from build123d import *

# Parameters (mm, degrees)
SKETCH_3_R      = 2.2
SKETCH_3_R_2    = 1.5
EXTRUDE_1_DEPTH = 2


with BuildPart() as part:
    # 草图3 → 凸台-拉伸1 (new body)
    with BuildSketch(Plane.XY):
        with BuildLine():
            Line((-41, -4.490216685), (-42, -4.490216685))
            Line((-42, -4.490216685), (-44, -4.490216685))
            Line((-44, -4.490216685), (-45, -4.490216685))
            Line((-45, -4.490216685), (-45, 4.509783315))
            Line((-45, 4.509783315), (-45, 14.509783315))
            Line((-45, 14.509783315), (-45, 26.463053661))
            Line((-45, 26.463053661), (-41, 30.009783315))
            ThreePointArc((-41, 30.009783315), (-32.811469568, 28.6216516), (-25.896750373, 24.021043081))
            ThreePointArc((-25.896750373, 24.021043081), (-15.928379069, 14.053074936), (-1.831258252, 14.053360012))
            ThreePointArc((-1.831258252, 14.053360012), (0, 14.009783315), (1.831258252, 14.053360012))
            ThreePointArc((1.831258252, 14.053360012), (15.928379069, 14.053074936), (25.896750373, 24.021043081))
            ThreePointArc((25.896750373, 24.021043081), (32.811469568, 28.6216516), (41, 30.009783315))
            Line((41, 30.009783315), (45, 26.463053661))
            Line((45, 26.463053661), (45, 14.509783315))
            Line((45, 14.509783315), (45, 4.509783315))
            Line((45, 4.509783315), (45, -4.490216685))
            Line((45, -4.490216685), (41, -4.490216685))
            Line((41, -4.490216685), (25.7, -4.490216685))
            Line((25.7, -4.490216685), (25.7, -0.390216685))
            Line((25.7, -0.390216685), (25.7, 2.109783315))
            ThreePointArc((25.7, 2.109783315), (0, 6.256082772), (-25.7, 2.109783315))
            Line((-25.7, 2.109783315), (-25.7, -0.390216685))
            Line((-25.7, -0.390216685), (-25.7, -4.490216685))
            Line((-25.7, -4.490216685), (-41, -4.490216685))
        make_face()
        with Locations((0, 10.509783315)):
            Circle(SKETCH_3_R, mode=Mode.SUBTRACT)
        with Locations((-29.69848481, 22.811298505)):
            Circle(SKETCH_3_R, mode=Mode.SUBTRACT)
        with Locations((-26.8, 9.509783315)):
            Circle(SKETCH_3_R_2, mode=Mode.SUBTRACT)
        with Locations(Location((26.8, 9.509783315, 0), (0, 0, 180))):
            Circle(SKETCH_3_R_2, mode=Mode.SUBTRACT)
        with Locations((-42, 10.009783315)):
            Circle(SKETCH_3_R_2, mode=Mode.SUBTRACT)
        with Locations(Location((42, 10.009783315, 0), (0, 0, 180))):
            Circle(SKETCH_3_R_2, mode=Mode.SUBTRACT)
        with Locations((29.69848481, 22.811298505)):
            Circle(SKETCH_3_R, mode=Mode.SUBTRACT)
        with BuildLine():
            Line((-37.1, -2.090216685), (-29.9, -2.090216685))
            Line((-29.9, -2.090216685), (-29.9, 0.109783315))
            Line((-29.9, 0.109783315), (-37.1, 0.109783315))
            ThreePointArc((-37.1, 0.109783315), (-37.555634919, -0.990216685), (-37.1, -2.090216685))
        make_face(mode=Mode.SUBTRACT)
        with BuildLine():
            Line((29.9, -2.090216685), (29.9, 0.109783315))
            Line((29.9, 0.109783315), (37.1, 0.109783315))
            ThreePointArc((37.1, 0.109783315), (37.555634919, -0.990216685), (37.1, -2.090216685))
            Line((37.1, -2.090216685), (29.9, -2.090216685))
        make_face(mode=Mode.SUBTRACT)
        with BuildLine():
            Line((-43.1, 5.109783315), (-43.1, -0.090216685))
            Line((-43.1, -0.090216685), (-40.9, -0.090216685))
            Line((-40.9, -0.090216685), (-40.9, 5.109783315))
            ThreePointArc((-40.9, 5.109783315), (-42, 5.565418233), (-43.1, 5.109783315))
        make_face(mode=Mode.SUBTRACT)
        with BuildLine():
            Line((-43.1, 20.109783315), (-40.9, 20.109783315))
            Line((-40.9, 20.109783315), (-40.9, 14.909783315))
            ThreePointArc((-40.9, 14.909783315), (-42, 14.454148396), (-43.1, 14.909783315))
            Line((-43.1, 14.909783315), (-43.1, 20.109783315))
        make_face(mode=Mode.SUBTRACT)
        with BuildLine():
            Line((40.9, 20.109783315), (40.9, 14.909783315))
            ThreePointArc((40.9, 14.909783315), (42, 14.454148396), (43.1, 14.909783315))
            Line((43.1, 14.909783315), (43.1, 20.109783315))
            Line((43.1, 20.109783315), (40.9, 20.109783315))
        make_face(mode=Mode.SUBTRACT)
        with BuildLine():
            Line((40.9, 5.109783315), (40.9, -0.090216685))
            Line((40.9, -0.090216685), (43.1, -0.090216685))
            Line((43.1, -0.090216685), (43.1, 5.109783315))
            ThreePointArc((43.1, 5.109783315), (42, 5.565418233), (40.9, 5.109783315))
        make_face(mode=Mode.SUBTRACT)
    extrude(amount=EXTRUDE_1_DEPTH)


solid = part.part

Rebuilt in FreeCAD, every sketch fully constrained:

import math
import FreeCAD as App
import Part
import Sketcher
from FreeCAD import Vector

doc = App.newDocument("Part")
params = doc.addObject("Spreadsheet::Sheet", "Params")
for row, (alias, value) in enumerate([
    ("sketch1_diameter", "3 mm"),
    ("sketch1_diameter2", "4.4 mm"),
    ("sketch1_radius", "38.500001 mm"),
    ("sketch1_width", "19.3 mm"),
    ("sketch1_width2", "7.2 mm"),
    ("pad1_length", "2 mm"),
], start=1):
    params.set(f"A{row}", alias)
    params.set(f"B{row}", "=" + value)
    params.setAlias(f"B{row}", alias)

body = doc.addObject("PartDesign::Body", "Body")

sketch1 = body.newObject("Sketcher::SketchObject", "Sketch")
sketch1.AttachmentSupport = (doc.getObject("XY_Plane"), [""])
sketch1.MapMode = "FlatFace"
sketch1.addGeometry(Part.LineSegment(Vector(-45, 26.463054, 0), Vector(-45, -4.490217, 0)), False)
sketch1.addGeometry(Part.LineSegment(Vector(-45, -4.490217, 0), Vector(-25.7, -4.490217, 0)), False)
sketch1.addGeometry(Part.LineSegment(Vector(-25.7, -4.490217, 0), Vector(-25.7, 2.109783, 0)), False)
sketch1.addGeometry(Part.ArcOfCircle(Part.Circle(Vector(0, -75.465197, 0), Vector(0, 0, 1), 81.72128), math.radians(71.67036), math.radians(108.32964)), False)
sketch1.addGeometry(Part.LineSegment(Vector(25.7, 2.109783, 0), Vector(25.7, -4.490217, 0)), False)
sketch1.addGeometry(Part.LineSegment(Vector(25.7, -4.490217, 0), Vector(45, -4.490217, 0)), False)
sketch1.addGeometry(Part.LineSegment(Vector(45, -4.490217, 0), Vector(45, 26.463054, 0)), False)
sketch1.addGeometry(Part.LineSegment(Vector(45, 26.463054, 0), Vector(41, 30.009783, 0)), False)
sketch1.addGeometry(Part.ArcOfCircle(Part.Circle(Vector(40.16884, 10.066797, 0), Vector(0, 0, 1), 19.960299), math.radians(87.613476), math.radians(135.645154)), False)
sketch1.addGeometry(Part.ArcOfCircle(Part.Circle(Vector(8.880163, 31.069948, 0), Vector(0, 0, 1), 18.418776), math.radians(-112.501159), math.radians(-22.501159)), False)
sketch1.addGeometry(Part.ArcOfCircle(Part.Circle(Vector(0, 52.509784, 0), Vector(0, 0, 1), 38.500001), math.radians(-92.726311), math.radians(-87.273689)), False)
sketch1.addGeometry(Part.ArcOfCircle(Part.Circle(Vector(-8.880163, 31.069948, 0), Vector(0, 0, 1), 18.418776), math.radians(-157.498841), math.radians(-67.498841)), False)
sketch1.addGeometry(Part.ArcOfCircle(Part.Circle(Vector(-40.16884, 10.066797, 0), Vector(0, 0, 1), 19.960299), math.radians(44.354846), math.radians(92.386524)), False)
sketch1.addGeometry(Part.LineSegment(Vector(-41, 30.009783, 0), Vector(-45, 26.463054, 0)), False)
sketch1.addGeometry(Part.LineSegment(Vector(29.9, -2.090217, 0), Vector(29.9, 0.109783, 0)), False)
sketch1.addGeometry(Part.LineSegment(Vector(29.9, 0.109783, 0), Vector(37.1, 0.109783, 0)), False)
sketch1.addGeometry(Part.ArcOfCircle(Part.Circle(Vector(36, -0.990217, 0), Vector(0, 0, 1), 1.555635), math.radians(-45), math.radians(45)), False)
sketch1.addGeometry(Part.LineSegment(Vector(37.1, -2.090217, 0), Vector(29.9, -2.090217, 0)), False)
sketch1.addGeometry(Part.ArcOfCircle(Part.Circle(Vector(42, 4.009783, 0), Vector(0, 0, 1), 1.555635), math.radians(45), math.radians(135)), False)
sketch1.addGeometry(Part.LineSegment(Vector(43.1, 5.109783, 0), Vector(43.1, -0.090217, 0)), False)
sketch1.addGeometry(Part.LineSegment(Vector(43.1, -0.090217, 0), Vector(40.9, -0.090217, 0)), False)
sketch1.addGeometry(Part.LineSegment(Vector(40.9, -0.090217, 0), Vector(40.9, 5.109783, 0)), False)
sketch1.addGeometry(Part.Circle(Vector(42, 10.009783, 0), Vector(0, 0, 1), 1.5), False)
sketch1.addGeometry(Part.Circle(Vector(26.8, 9.509783, 0), Vector(0, 0, 1), 1.5), False)
sketch1.addGeometry(Part.ArcOfCircle(Part.Circle(Vector(-36, -0.990217, 0), Vector(0, 0, 1), 1.555635), math.radians(135), math.radians(225)), False)
sketch1.addGeometry(Part.LineSegment(Vector(-37.1, 0.109783, 0), Vector(-29.9, 0.109783, 0)), False)
sketch1.addGeometry(Part.LineSegment(Vector(-29.9, 0.109783, 0), Vector(-29.9, -2.090217, 0)), False)
sketch1.addGeometry(Part.LineSegment(Vector(-29.9, -2.090217, 0), Vector(-37.1, -2.090217, 0)), False)
sketch1.addGeometry(Part.ArcOfCircle(Part.Circle(Vector(-42, 4.009783, 0), Vector(0, 0, 1), 1.555635), math.radians(45), math.radians(135)), False)
sketch1.addGeometry(Part.LineSegment(Vector(-40.9, 5.109783, 0), Vector(-40.9, -0.090217, 0)), False)
sketch1.addGeometry(Part.LineSegment(Vector(-40.9, -0.090217, 0), Vector(-43.1, -0.090217, 0)), False)
sketch1.addGeometry(Part.LineSegment(Vector(-43.1, -0.090217, 0), Vector(-43.1, 5.109783, 0)), False)
sketch1.addGeometry(Part.Circle(Vector(0, 10.509783, 0), Vector(0, 0, 1), 2.2), False)
sketch1.addGeometry(Part.Circle(Vector(-26.8, 9.509783, 0), Vector(0, 0, 1), 1.5), False)
sketch1.addGeometry(Part.Circle(Vector(-42, 10.009783, 0), Vector(0, 0, 1), 1.5), False)
sketch1.addGeometry(Part.LineSegment(Vector(40.9, 20.109783, 0), Vector(43.1, 20.109783, 0)), False)
sketch1.addGeometry(Part.LineSegment(Vector(43.1, 20.109783, 0), Vector(43.1, 14.909783, 0)), False)
sketch1.addGeometry(Part.ArcOfCircle(Part.Circle(Vector(42, 16.009783, 0), Vector(0, 0, 1), 1.555635), math.radians(-135), math.radians(-45)), False)
sketch1.addGeometry(Part.LineSegment(Vector(40.9, 14.909783, 0), Vector(40.9, 20.109783, 0)), False)
sketch1.addGeometry(Part.Circle(Vector(29.698485, 22.811299, 0), Vector(0, 0, 1), 2.2), False)
sketch1.addGeometry(Part.LineSegment(Vector(-43.1, 20.109783, 0), Vector(-40.9, 20.109783, 0)), False)
sketch1.addGeometry(Part.LineSegment(Vector(-40.9, 20.109783, 0), Vector(-40.9, 14.909783, 0)), False)
sketch1.addGeometry(Part.ArcOfCircle(Part.Circle(Vector(-42, 16.009783, 0), Vector(0, 0, 1), 1.555635), math.radians(-135), math.radians(-45)), False)
sketch1.addGeometry(Part.LineSegment(Vector(-43.1, 14.909783, 0), Vector(-43.1, 20.109783, 0)), False)
sketch1.addGeometry(Part.Circle(Vector(-29.698485, 22.811299, 0), Vector(0, 0, 1), 2.2), False)
sketch1.addConstraint(Sketcher.Constraint("Coincident", 0, 2, 1, 1))
sketch1.addConstraint(Sketcher.Constraint("Coincident", 1, 2, 2, 1))
sketch1.addConstraint(Sketcher.Constraint("Coincident", 2, 2, 3, 2))
sketch1.addConstraint(Sketcher.Constraint("Coincident", 3, 1, 4, 1))
sketch1.addConstraint(Sketcher.Constraint("Coincident", 4, 2, 5, 1))
sketch1.addConstraint(Sketcher.Constraint("Coincident", 5, 2, 6, 1))
sketch1.addConstraint(Sketcher.Constraint("Coincident", 6, 2, 7, 1))
sketch1.addConstraint(Sketcher.Constraint("Coincident", 7, 2, 8, 1))
sketch1.addConstraint(Sketcher.Constraint("Coincident", 8, 2, 9, 2))
sketch1.addConstraint(Sketcher.Constraint("Coincident", 9, 1, 10, 2))
sketch1.addConstraint(Sketcher.Constraint("Coincident", 10, 1, 11, 2))
sketch1.addConstraint(Sketcher.Constraint("Coincident", 11, 1, 12, 1))
sketch1.addConstraint(Sketcher.Constraint("Coincident", 12, 2, 13, 1))
sketch1.addConstraint(Sketcher.Constraint("Coincident", 13, 2, 0, 1))
sketch1.addConstraint(Sketcher.Constraint("Coincident", 14, 2, 15, 1))
sketch1.addConstraint(Sketcher.Constraint("Coincident", 15, 2, 16, 2))
sketch1.addConstraint(Sketcher.Constraint("Coincident", 16, 1, 17, 1))
sketch1.addConstraint(Sketcher.Constraint("Coincident", 17, 2, 14, 1))
sketch1.addConstraint(Sketcher.Constraint("Coincident", 18, 1, 19, 1))
sketch1.addConstraint(Sketcher.Constraint("Coincident", 19, 2, 20, 1))
sketch1.addConstraint(Sketcher.Constraint("Coincident", 20, 2, 21, 1))
sketch1.addConstraint(Sketcher.Constraint("Coincident", 21, 2, 18, 2))
sketch1.addConstraint(Sketcher.Constraint("Coincident", 24, 1, 25, 1))
sketch1.addConstraint(Sketcher.Constraint("Coincident", 25, 2, 26, 1))
sketch1.addConstraint(Sketcher.Constraint("Coincident", 26, 2, 27, 1))
sketch1.addConstraint(Sketcher.Constraint("Coincident", 27, 2, 24, 2))
sketch1.addConstraint(Sketcher.Constraint("Coincident", 28, 1, 29, 1))
sketch1.addConstraint(Sketcher.Constraint("Coincident", 29, 2, 30, 1))
sketch1.addConstraint(Sketcher.Constraint("Coincident", 30, 2, 31, 1))
sketch1.addConstraint(Sketcher.Constraint("Coincident", 31, 2, 28, 2))
sketch1.addConstraint(Sketcher.Constraint("Coincident", 35, 2, 36, 1))
sketch1.addConstraint(Sketcher.Constraint("Coincident", 36, 2, 37, 2))
sketch1.addConstraint(Sketcher.Constraint("Coincident", 37, 1, 38, 1))
sketch1.addConstraint(Sketcher.Constraint("Coincident", 38, 2, 35, 1))
sketch1.addConstraint(Sketcher.Constraint("Coincident", 40, 2, 41, 1))
sketch1.addConstraint(Sketcher.Constraint("Coincident", 41, 2, 42, 2))
sketch1.addConstraint(Sketcher.Constraint("Coincident", 42, 1, 43, 1))
sketch1.addConstraint(Sketcher.Constraint("Coincident", 43, 2, 40, 1))
sketch1.addConstraint(Sketcher.Constraint("Vertical", 0))
sketch1.addConstraint(Sketcher.Constraint("Horizontal", 1))
sketch1.addConstraint(Sketcher.Constraint("Vertical", 2))
sketch1.addConstraint(Sketcher.Constraint("Vertical", 4))
sketch1.addConstraint(Sketcher.Constraint("Horizontal", 5))
sketch1.addConstraint(Sketcher.Constraint("Vertical", 6))
sketch1.addConstraint(Sketcher.Constraint("Vertical", 14))
sketch1.addConstraint(Sketcher.Constraint("Horizontal", 15))
sketch1.addConstraint(Sketcher.Constraint("Horizontal", 17))
sketch1.addConstraint(Sketcher.Constraint("Vertical", 19))
sketch1.addConstraint(Sketcher.Constraint("Horizontal", 20))
sketch1.addConstraint(Sketcher.Constraint("Vertical", 21))
sketch1.addConstraint(Sketcher.Constraint("Horizontal", 25))
sketch1.addConstraint(Sketcher.Constraint("Vertical", 26))
sketch1.addConstraint(Sketcher.Constraint("Horizontal", 27))
sketch1.addConstraint(Sketcher.Constraint("Vertical", 29))
sketch1.addConstraint(Sketcher.Constraint("Horizontal", 30))
sketch1.addConstraint(Sketcher.Constraint("Vertical", 31))
sketch1.addConstraint(Sketcher.Constraint("Horizontal", 35))
sketch1.addConstraint(Sketcher.Constraint("Vertical", 36))
sketch1.addConstraint(Sketcher.Constraint("Vertical", 38))
sketch1.addConstraint(Sketcher.Constraint("Horizontal", 40))
sketch1.addConstraint(Sketcher.Constraint("Vertical", 41))
sketch1.addConstraint(Sketcher.Constraint("Vertical", 43))
sketch1.addConstraint(Sketcher.Constraint("Equal", 9, 11))
sketch1.addConstraint(Sketcher.Constraint("Equal", 8, 12))
sketch1.addConstraint(Sketcher.Constraint("Equal", 16, 18))
sketch1.addConstraint(Sketcher.Constraint("Equal", 22, 23))
sketch1.addConstraint(Sketcher.Constraint("Equal", 18, 24))
sketch1.addConstraint(Sketcher.Constraint("Equal", 24, 28))
sketch1.addConstraint(Sketcher.Constraint("Equal", 23, 33))
sketch1.addConstraint(Sketcher.Constraint("Equal", 33, 34))
sketch1.addConstraint(Sketcher.Constraint("Equal", 28, 37))
sketch1.addConstraint(Sketcher.Constraint("Equal", 32, 39))
sketch1.addConstraint(Sketcher.Constraint("Equal", 37, 42))
sketch1.addConstraint(Sketcher.Constraint("Equal", 39, 44))
sketch1.addConstraint(Sketcher.Constraint("Symmetric", 9, 3, 11, 3, -2))
sketch1.addConstraint(Sketcher.Constraint("Symmetric", 8, 3, 12, 3, -2))
sketch1.addConstraint(Sketcher.Constraint("Symmetric", 16, 3, 24, 3, -2))
sketch1.addConstraint(Sketcher.Constraint("Symmetric", 18, 3, 28, 3, -2))
sketch1.addConstraint(Sketcher.Constraint("Symmetric", 23, 3, 33, 3, -2))
sketch1.addConstraint(Sketcher.Constraint("Symmetric", 22, 3, 34, 3, -2))
sketch1.addConstraint(Sketcher.Constraint("Symmetric", 37, 3, 42, 3, -2))
sketch1.addConstraint(Sketcher.Constraint("Symmetric", 39, 3, 44, 3, -2))
sketch1.addConstraint(Sketcher.Constraint("Symmetric", 2, 2, 3, 1, -2))
sketch1.addConstraint(Sketcher.Constraint("Symmetric", 0, 2, 5, 2, -2))
sketch1.addConstraint(Sketcher.Constraint("Symmetric", 14, 2, 25, 2, -2))
sketch1.addConstraint(Sketcher.Constraint("Symmetric", 20, 2, 29, 2, -2))
sketch1.addConstraint(Sketcher.Constraint("Symmetric", 38, 2, 40, 2, -2))
sketch1.addConstraint(Sketcher.Constraint("PointOnObject", 10, 3, -2))
sketch1.addConstraint(Sketcher.Constraint("PointOnObject", 32, 3, -2))
sketch1.addConstraint(Sketcher.Constraint("Horizontal", 7, 2, 12, 2))
sketch1.addConstraint(Sketcher.Constraint("Horizontal", 6, 2, 13, 2))
sketch1.addConstraint(Sketcher.Constraint("Horizontal", 18, 1, 21, 2))
sketch1.addConstraint(Sketcher.Constraint("Horizontal", 17, 2, 26, 2))
sketch1.addConstraint(Sketcher.Constraint("Horizontal", 28, 1, 31, 2))
sketch1.addConstraint(Sketcher.Constraint("Horizontal", 36, 2, 37, 1))
sketch1.addConstraint(Sketcher.Constraint("Horizontal", 41, 2, 42, 1))
sketch1.addConstraint(Sketcher.Constraint("Vertical", 18, 3, 22, 3))
sketch1.addConstraint(Sketcher.Constraint("Vertical", 22, 3, 37, 3))
sketch1.addConstraint(Sketcher.Constraint("Vertical", 15, 2, 16, 1))
sketch1.addConstraint(Sketcher.Constraint("Vertical", 19, 2, 35, 2))
sketch1.addConstraint(Sketcher.Constraint("Equal", 40, 14))
sketch1.addConstraint(Sketcher.Constraint("Equal", 31, 36))
sketch1.addConstraint(Sketcher.Constraint("Diameter", 22, 3.0))
sketch1.addConstraint(Sketcher.Constraint("Diameter", 32, 4.4))
sketch1.addConstraint(Sketcher.Constraint("Radius", 10, 38.500001))
sketch1.addConstraint(Sketcher.Constraint("DistanceX", 1, 1, 1, 2, 19.3))
sketch1.addConstraint(Sketcher.Constraint("DistanceX", 15, 1, 15, 2, 7.2))
sketch1.addConstraint(Sketcher.Constraint("DistanceX", 20, 2, 20, 1, 2.2))
sketch1.addConstraint(Sketcher.Constraint("DistanceY", 2, 1, 2, 2, 6.6))
sketch1.addConstraint(Sketcher.Constraint("DistanceY", 19, 2, 19, 1, 5.2))
sketch1.addConstraint(Sketcher.Constraint("DistanceX", -1, 1, 16, 3, 36.0))
sketch1.addConstraint(Sketcher.Constraint("DistanceX", -1, 1, 18, 3, 42.0))
sketch1.addConstraint(Sketcher.Constraint("DistanceX", 0, 2, -1, 1, 45.0))
sketch1.addConstraint(Sketcher.Constraint("DistanceX", -1, 1, 7, 2, 41.0))
sketch1.addConstraint(Sketcher.Constraint("DistanceY", 16, 3, 18, 3, 5.0))
sketch1.addConstraint(Sketcher.Constraint("DistanceY", 18, 3, 22, 3, 6.0))
sketch1.addConstraint(Sketcher.Constraint("DistanceY", 23, 3, 32, 3, 1.0))
sketch1.addConstraint(Sketcher.Constraint("DistanceY", 22, 3, 37, 3, 6.0))
sketch1.addConstraint(Sketcher.Constraint("DistanceY", 1, 2, 33, 3, 14.0))
sketch1.addConstraint(Sketcher.Constraint("DistanceY", 37, 3, 7, 2, 14.0))
sketch1.addConstraint(Sketcher.Constraint("DistanceY", 14, 2, 3, 1, 2.0))
sketch1.addConstraint(Sketcher.Constraint("DistanceX", 15, 2, 18, 1, 6.0))
sketch1.addConstraint(Sketcher.Constraint("DistanceX", -1, 1, 23, 3, 26.8))
sketch1.addConstraint(Sketcher.Constraint("Radius", 8, 19.960299))
sketch1.addConstraint(Sketcher.Constraint("DistanceY", 16, 3, 10, 3, 53.500001))
sketch1.addConstraint(Sketcher.Constraint("Radius", 3, 81.72128))
sketch1.addConstraint(Sketcher.Constraint("Radius", 9, 18.418776))
sketch1.addConstraint(Sketcher.Constraint("DistanceY", 0, 2, 0, 1, 30.95327))
sketch1.addConstraint(Sketcher.Constraint("DistanceY", -1, 1, 39, 3, 22.811299))
sketch1.addConstraint(Sketcher.Constraint("DistanceY", 8, 3, 39, 3, 12.744501))
sketch1.addConstraint(Sketcher.Constraint("DistanceX", -1, 1, 8, 3, 40.16884))
sketch1.addConstraint(Sketcher.Constraint("DistanceX", -1, 1, 8, 2, 25.89675))
sketch1.addConstraint(Sketcher.Constraint("DistanceX", -1, 1, 9, 1, 1.831258))
sketch1.addConstraint(Sketcher.Constraint("DistanceX", -1, 1, 39, 3, 29.698485))
sketch1.setExpression("Constraints[102]", "Params.sketch1_diameter")
sketch1.setExpression("Constraints[103]", "Params.sketch1_diameter2")
sketch1.setExpression("Constraints[104]", "Params.sketch1_radius")
sketch1.setExpression("Constraints[105]", "Params.sketch1_width")
sketch1.setExpression("Constraints[106]", "Params.sketch1_width2")
pad1 = body.newObject("PartDesign::Pad", "Pad")
pad1.Profile = sketch1
pad1.setExpression("Length", "Params.pad1_length")

doc.recompute()
